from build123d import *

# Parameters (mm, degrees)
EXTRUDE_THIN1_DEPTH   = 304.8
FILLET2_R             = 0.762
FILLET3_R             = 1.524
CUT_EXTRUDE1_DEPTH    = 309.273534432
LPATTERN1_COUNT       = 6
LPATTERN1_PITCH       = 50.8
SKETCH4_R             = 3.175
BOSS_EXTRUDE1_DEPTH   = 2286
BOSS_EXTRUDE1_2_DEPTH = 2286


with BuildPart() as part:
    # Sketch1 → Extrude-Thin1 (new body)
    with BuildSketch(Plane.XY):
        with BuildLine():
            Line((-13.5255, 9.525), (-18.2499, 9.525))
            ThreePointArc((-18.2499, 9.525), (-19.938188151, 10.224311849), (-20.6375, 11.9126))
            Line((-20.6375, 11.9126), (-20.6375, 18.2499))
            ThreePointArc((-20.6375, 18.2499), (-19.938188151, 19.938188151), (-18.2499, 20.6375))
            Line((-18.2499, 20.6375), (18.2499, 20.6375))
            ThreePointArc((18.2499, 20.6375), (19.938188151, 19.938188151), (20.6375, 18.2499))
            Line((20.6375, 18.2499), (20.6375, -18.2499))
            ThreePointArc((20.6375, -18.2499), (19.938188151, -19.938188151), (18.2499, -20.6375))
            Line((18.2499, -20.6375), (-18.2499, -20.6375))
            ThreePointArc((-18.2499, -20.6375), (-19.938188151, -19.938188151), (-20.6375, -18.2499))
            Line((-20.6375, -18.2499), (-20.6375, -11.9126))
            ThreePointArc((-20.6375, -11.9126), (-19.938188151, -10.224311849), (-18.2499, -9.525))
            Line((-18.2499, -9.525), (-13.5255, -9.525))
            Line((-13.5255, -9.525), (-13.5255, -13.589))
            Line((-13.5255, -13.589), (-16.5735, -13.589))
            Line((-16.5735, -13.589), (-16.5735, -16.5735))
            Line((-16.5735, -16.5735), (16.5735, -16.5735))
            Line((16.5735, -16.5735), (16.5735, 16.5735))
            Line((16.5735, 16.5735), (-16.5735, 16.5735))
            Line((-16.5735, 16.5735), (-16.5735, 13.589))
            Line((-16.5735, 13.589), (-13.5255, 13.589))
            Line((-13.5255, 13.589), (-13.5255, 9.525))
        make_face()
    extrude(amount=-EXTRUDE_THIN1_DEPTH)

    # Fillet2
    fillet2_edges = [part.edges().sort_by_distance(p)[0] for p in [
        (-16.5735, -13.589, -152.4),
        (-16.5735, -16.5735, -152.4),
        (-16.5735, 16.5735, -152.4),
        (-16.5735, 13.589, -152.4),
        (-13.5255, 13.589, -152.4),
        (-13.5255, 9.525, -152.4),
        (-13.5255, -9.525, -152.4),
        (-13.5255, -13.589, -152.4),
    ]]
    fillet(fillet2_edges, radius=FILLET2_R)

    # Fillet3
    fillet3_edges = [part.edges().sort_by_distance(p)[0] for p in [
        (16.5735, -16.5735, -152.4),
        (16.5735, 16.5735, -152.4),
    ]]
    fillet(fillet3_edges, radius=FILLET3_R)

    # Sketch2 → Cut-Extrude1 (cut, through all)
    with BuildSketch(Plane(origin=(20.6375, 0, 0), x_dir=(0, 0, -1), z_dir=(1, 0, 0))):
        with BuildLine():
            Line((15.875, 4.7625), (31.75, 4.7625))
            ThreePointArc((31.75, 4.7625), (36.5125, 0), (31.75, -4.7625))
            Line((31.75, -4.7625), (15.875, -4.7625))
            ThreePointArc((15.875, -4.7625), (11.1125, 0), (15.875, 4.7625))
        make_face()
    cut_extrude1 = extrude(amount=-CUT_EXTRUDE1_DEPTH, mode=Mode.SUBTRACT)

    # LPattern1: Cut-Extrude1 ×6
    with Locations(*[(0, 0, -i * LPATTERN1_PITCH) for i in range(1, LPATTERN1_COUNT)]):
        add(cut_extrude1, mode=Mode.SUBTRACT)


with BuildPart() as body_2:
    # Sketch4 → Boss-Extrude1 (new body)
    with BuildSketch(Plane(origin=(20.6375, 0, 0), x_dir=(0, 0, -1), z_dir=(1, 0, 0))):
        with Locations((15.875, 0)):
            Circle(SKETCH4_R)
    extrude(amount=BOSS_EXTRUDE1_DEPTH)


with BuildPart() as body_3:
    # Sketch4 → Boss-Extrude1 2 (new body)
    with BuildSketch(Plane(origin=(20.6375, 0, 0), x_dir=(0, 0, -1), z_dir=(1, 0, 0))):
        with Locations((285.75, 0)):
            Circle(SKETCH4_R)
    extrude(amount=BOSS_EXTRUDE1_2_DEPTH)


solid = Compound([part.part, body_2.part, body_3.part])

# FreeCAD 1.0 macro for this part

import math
import FreeCAD as App
import Part
import Sketcher

V = App.Vector
Q = App.Units.Quantity


def edges_at(feature, points):
    """Names of the edges that pass closest to the given points."""
    edges = feature.Shape.Edges
    near = lambda p: min(range(len(edges)), key=lambda i: edges[i].distToShape(Part.Vertex(*p))[0])
    return sorted({f"Edge{near(p) + 1}" for p in points})

doc = App.newDocument("Part")
body = doc.addObject("PartDesign::Body", "Body")

sketch1 = doc.addObject("Sketcher::SketchObject", "Sketch")
body.addObject(sketch1)
sketch1.AttachmentSupport = (doc.XY_Plane, [""])
sketch1.MapMode = "FlatFace"
sketch1.addGeometry(Part.LineSegment(V(-18.2, 9.5, 0), V(-13.5, 9.5, 0)), False)
sketch1.addGeometry(Part.LineSegment(V(-13.5, 9.5, 0), V(-13.5, 13.6, 0)), False)
sketch1.addGeometry(Part.LineSegment(V(-13.5, 13.6, 0), V(-16.6, 13.6, 0)), False)
sketch1.addGeometry(Part.LineSegment(V(-16.6, 13.6, 0), V(-16.6, 16.6, 0)), False)
sketch1.addGeometry(Part.LineSegment(V(-16.6, 16.6, 0), V(16.6, 16.6, 0)), False)
sketch1.addGeometry(Part.LineSegment(V(16.6, 16.6, 0), V(16.6, -16.6, 0)), False)
sketch1.addGeometry(Part.LineSegment(V(16.6, -16.6, 0), V(-16.6, -16.6, 0)), False)
sketch1.addGeometry(Part.LineSegment(V(-16.6, -16.6, 0), V(-16.6, -13.6, 0)), False)
sketch1.addGeometry(Part.LineSegment(V(-16.6, -13.6, 0), V(-13.5, -13.6, 0)), False)
sketch1.addGeometry(Part.LineSegment(V(-13.5, -13.6, 0), V(-13.5, -9.5, 0)), False)
sketch1.addGeometry(Part.LineSegment(V(-13.5, -9.5, 0), V(-18.2, -9.5, 0)), False)
sketch1.addGeometry(Part.ArcOfCircle(Part.Circle(V(-18.2, -11.9, 0), V(0, 0, 1), 2.4), math.radians(90), math.radians(180)), False)
sketch1.addGeometry(Part.LineSegment(V(-20.6, -11.9, 0), V(-20.6, -18.2, 0)), False)
sketch1.addGeometry(Part.ArcOfCircle(Part.Circle(V(-18.2, -18.2, 0), V(0, 0, 1), 2.4), math.radians(180), math.radians(270)), False)
sketch1.addGeometry(Part.LineSegment(V(-18.2, -20.6, 0), V(18.2, -20.6, 0)), False)
sketch1.addGeometry(Part.ArcOfCircle(Part.Circle(V(18.2, -18.2, 0), V(0, 0, 1), 2.4), math.radians(-90), math.radians(0)), False)
sketch1.addGeometry(Part.LineSegment(V(20.6, -18.2, 0), V(20.6, 18.2, 0)), False)
sketch1.addGeometry(Part.ArcOfCircle(Part.Circle(V(18.2, 18.2, 0), V(0, 0, 1), 2.4), math.radians(0), math.radians(90)), False)
sketch1.addGeometry(Part.LineSegment(V(18.2, 20.6, 0), V(-18.2, 20.6, 0)), False)
sketch1.addGeometry(Part.ArcOfCircle(Part.Circle(V(-18.2, 18.2, 0), V(0, 0, 1), 2.4), math.radians(90), math.radians(180)), False)
sketch1.addGeometry(Part.LineSegment(V(-20.6, 18.2, 0), V(-20.6, 11.9, 0)), False)
sketch1.addGeometry(Part.ArcOfCircle(Part.Circle(V(-18.2, 11.9, 0), V(0, 0, 1), 2.4), math.radians(180), math.radians(270)), False)
sketch1.addConstraint(Sketcher.Constraint("Coincident", 0, 2, 1, 1))
sketch1.addConstraint(Sketcher.Constraint("Coincident", 1, 2, 2, 1))
sketch1.addConstraint(Sketcher.Constraint("Coincident", 2, 2, 3, 1))
sketch1.addConstraint(Sketcher.Constraint("Coincident", 3, 2, 4, 1))
sketch1.addConstraint(Sketcher.Constraint("Coincident", 4, 2, 5, 1))
sketch1.addConstraint(Sketcher.Constraint("Coincident", 5, 2, 6, 1))
sketch1.addConstraint(Sketcher.Constraint("Coincident", 6, 2, 7, 1))
sketch1.addConstraint(Sketcher.Constraint("Coincident", 7, 2, 8, 1))
sketch1.addConstraint(Sketcher.Constraint("Coincident", 8, 2, 9, 1))
sketch1.addConstraint(Sketcher.Constraint("Coincident", 9, 2, 10, 1))
sketch1.addConstraint(Sketcher.Constraint("Tangent", 10, 2, 11, 1))
sketch1.addConstraint(Sketcher.Constraint("Tangent", 11, 2, 12, 1))
sketch1.addConstraint(Sketcher.Constraint("Tangent", 12, 2, 13, 1))
sketch1.addConstraint(Sketcher.Constraint("Tangent", 13, 2, 14, 1))
sketch1.addConstraint(Sketcher.Constraint("Tangent", 14, 2, 15, 1))
sketch1.addConstraint(Sketcher.Constraint("Tangent", 15, 2, 16, 1))
sketch1.addConstraint(Sketcher.Constraint("Tangent", 16, 2, 17, 1))
sketch1.addConstraint(Sketcher.Constraint("Tangent", 17, 2, 18, 1))
sketch1.addConstraint(Sketcher.Constraint("Tangent", 18, 2, 19, 1))
sketch1.addConstraint(Sketcher.Constraint("Tangent", 19, 2, 20, 1))
sketch1.addConstraint(Sketcher.Constraint("Tangent", 20, 2, 21, 1))
sketch1.addConstraint(Sketcher.Constraint("Tangent", 21, 2, 0, 1))
sketch1.addConstraint(Sketcher.Constraint("Horizontal", 0))
sketch1.addConstraint(Sketcher.Constraint("Vertical", 1))
sketch1.addConstraint(Sketcher.Constraint("Horizontal", 2))
sketch1.addConstraint(Sketcher.Constraint("Vertical", 3))
sketch1.addConstraint(Sketcher.Constraint("Horizontal", 4))
sketch1.addConstraint(Sketcher.Constraint("Vertical", 5))
sketch1.addConstraint(Sketcher.Constraint("Horizontal", 6))
sketch1.addConstraint(Sketcher.Constraint("Vertical", 7))
sketch1.addConstraint(Sketcher.Constraint("Horizontal", 8))
sketch1.addConstraint(Sketcher.Constraint("Vertical", 9))
sketch1.addConstraint(Sketcher.Constraint("Horizontal", 10))
sketch1.addConstraint(Sketcher.Constraint("Vertical", 12))
sketch1.addConstraint(Sketcher.Constraint("Horizontal", 14))
sketch1.addConstraint(Sketcher.Constraint("Vertical", 16))
sketch1.addConstraint(Sketcher.Constraint("Horizontal", 18))
sketch1.addConstraint(Sketcher.Constraint("Vertical", 20))
sketch1.addConstraint(Sketcher.Constraint("Equal", 11, 13))
sketch1.addConstraint(Sketcher.Constraint("Equal", 13, 15))
sketch1.addConstraint(Sketcher.Constraint("Equal", 15, 17))
sketch1.addConstraint(Sketcher.Constraint("Equal", 17, 19))
sketch1.addConstraint(Sketcher.Constraint("Equal", 19, 21))
sketch1.addConstraint(Sketcher.Constraint("Symmetric", 13, 3, 17, 3, -1, 1))
sketch1.addConstraint(Sketcher.Constraint("Symmetric", 3, 2, 5, 2, -1, 1))
sketch1.addConstraint(Sketcher.Constraint("Symmetric", 11, 3, 21, 3, -1))
sketch1.addConstraint(Sketcher.Constraint("Symmetric", 2, 2, 7, 2, -1))
sketch1.addConstraint(Sketcher.Constraint("Vertical", 1, 2, 8, 2))
sketch1.addConstraint(Sketcher.Constraint("Equal", 6, 5))
sketch1.addConstraint(Sketcher.Constraint("Equal", 18, 16))
sketch1.addConstraint(Sketcher.Constraint("Radius", 11, Q("0.094 in")))
sketch1.addConstraint(Sketcher.Constraint("DistanceX", 2, 2, 2, 1, Q("0.12 in")))
sketch1.addConstraint(Sketcher.Constraint("DistanceY", 1, 1, 1, 2, Q("0.16 in")))
sketch1.addConstraint(Sketcher.Constraint("DistanceX", 0, 1, 0, 2, Q("0.186 in")))
sketch1.addConstraint(Sketcher.Constraint("DistanceX", 4, 1, 4, 2, Q("1.305 in")))
sketch1.addConstraint(Sketcher.Constraint("DistanceY", 7, 2, 0, 2, Q("0.91 in")))
pad1 = doc.addObject("PartDesign::Pad", "Pad")
body.addObject(pad1)
pad1.Profile = sketch1
pad1.Length = Q("12 in")
pad1.Reversed = True
doc.recompute()

fillet = doc.addObject("PartDesign::Fillet", "Fillet")
body.addObject(fillet)
fillet.Base = (pad1, edges_at(pad1, [
    (-16.573, -13.589, -152.4),
    (-16.573, -16.573, -152.4),
    (-16.573, 16.573, -152.4),
    (-16.573, 13.589, -152.4),
    (-13.525, 13.589, -152.4),
    (-13.525, 9.525, -152.4),
    (-13.525, -9.525, -152.4),
    (-13.525, -13.589, -152.4),
]))
fillet.Radius = Q("0.03 in")
doc.recompute()

fillet2 = doc.addObject("PartDesign::Fillet", "Fillet001")
body.addObject(fillet2)
fillet2.Base = (fillet, edges_at(fillet, [(16.573, -16.573, -152.4), (16.573, 16.573, -152.4)]))
fillet2.Radius = Q("0.06 in")

sketch2 = doc.addObject("Sketcher::SketchObject", "Sketch001")
body.addObject(sketch2)
sketch2.AttachmentSupport = (doc.YZ_Plane, [""])
sketch2.MapMode = "FlatFace"
sketch2.AttachmentOffset = App.Placement(V(0, 0, 0.8125 * 25.4), App.Rotation())
sketch2.addGeometry(Part.LineSegment(V(4.8, -31.8, 0), V(4.8, -15.9, 0)), False)
sketch2.addGeometry(Part.ArcOfCircle(Part.Circle(V(0, -15.9, 0), V(0, 0, 1), 4.8), math.radians(0), math.radians(180)), False)
sketch2.addGeometry(Part.LineSegment(V(-4.8, -15.9, 0), V(-4.8, -31.8, 0)), False)
sketch2.addGeometry(Part.ArcOfCircle(Part.Circle(V(0, -31.8, 0), V(0, 0, 1), 4.8), math.radians(180), math.radians(360)), False)
sketch2.addConstraint(Sketcher.Constraint("Tangent", 0, 2, 1, 1))
sketch2.addConstraint(Sketcher.Constraint("Tangent", 1, 2, 2, 1))
sketch2.addConstraint(Sketcher.Constraint("Tangent", 2, 2, 3, 1))
sketch2.addConstraint(Sketcher.Constraint("Tangent", 3, 2, 0, 1))
sketch2.addConstraint(Sketcher.Constraint("Vertical", 0))
sketch2.addConstraint(Sketcher.Constraint("Vertical", 2))
sketch2.addConstraint(Sketcher.Constraint("PointOnObject", 1, 3, -2))
sketch2.addConstraint(Sketcher.Constraint("Radius", 1, Q("0.1875 in")))
sketch2.addConstraint(Sketcher.Constraint("DistanceY", 0, 1, 0, 2, Q("0.625 in")))
sketch2.addConstraint(Sketcher.Constraint("DistanceY", 3, 3, -1, 1, Q("1.25 in")))
pocket1 = doc.addObject("PartDesign::Pocket", "Pocket")
body.addObject(pocket1)
pocket1.Profile = sketch2
pocket1.Type = "ThroughAll"
doc.recompute()

linearpattern = doc.addObject("PartDesign::LinearPattern", "LinearPattern")
body.addObject(linearpattern)
linearpattern.Originals = [pocket1]
linearpattern.Direction = (doc.Z_Axis, [""])
linearpattern.Mode = "offset"
linearpattern.Offset = Q("2 in")
linearpattern.Occurrences = 6
linearpattern.Reversed = True
body.Tip = linearpattern
body2 = doc.addObject("PartDesign::Body", "Body001")

sketch3 = doc.addObject("Sketcher::SketchObject", "Sketch002")
body2.addObject(sketch3)
sketch3.AttachmentSupport = (doc.getObject("YZ_Plane001"), [""])
sketch3.MapMode = "FlatFace"
sketch3.AttachmentOffset = App.Placement(V(0, 0, 0.8125 * 25.4), App.Rotation())
sketch3.addGeometry(Part.Circle(V(0, -15.9, 0), V(0, 0, 1), 3.2), False)
sketch3.addConstraint(Sketcher.Constraint("PointOnObject", 0, 3, -2))
sketch3.addConstraint(Sketcher.Constraint("Diameter", 0, Q("0.25 in")))
sketch3.addConstraint(Sketcher.Constraint("DistanceY", 0, 3, -1, 1, Q("0.625 in")))
pad2 = doc.addObject("PartDesign::Pad", "Pad001")
body2.addObject(pad2)
pad2.Profile = sketch3
pad2.Length = Q("90 in")
body3 = doc.addObject("PartDesign::Body", "Body002")

sketch4 = doc.addObject("Sketcher::SketchObject", "Sketch003")
body3.addObject(sketch4)
sketch4.AttachmentSupport = (doc.getObject("YZ_Plane002"), [""])
sketch4.MapMode = "FlatFace"
sketch4.AttachmentOffset = App.Placement(V(0, 0, 0.8125 * 25.4), App.Rotation())
sketch4.addGeometry(Part.Circle(V(0, -285.8, 0), V(0, 0, 1), 3.2), False)
sketch4.addConstraint(Sketcher.Constraint("PointOnObject", 0, 3, -2))
sketch4.addConstraint(Sketcher.Constraint("Diameter", 0, Q("0.25 in")))
sketch4.addConstraint(Sketcher.Constraint("DistanceY", 0, 3, -1, 1, Q("11.25 in")))
pad3 = doc.addObject("PartDesign::Pad", "Pad002")
body3.addObject(pad3)
pad3.Profile = sketch4
pad3.Length = Q("90 in")

doc.recompute()
